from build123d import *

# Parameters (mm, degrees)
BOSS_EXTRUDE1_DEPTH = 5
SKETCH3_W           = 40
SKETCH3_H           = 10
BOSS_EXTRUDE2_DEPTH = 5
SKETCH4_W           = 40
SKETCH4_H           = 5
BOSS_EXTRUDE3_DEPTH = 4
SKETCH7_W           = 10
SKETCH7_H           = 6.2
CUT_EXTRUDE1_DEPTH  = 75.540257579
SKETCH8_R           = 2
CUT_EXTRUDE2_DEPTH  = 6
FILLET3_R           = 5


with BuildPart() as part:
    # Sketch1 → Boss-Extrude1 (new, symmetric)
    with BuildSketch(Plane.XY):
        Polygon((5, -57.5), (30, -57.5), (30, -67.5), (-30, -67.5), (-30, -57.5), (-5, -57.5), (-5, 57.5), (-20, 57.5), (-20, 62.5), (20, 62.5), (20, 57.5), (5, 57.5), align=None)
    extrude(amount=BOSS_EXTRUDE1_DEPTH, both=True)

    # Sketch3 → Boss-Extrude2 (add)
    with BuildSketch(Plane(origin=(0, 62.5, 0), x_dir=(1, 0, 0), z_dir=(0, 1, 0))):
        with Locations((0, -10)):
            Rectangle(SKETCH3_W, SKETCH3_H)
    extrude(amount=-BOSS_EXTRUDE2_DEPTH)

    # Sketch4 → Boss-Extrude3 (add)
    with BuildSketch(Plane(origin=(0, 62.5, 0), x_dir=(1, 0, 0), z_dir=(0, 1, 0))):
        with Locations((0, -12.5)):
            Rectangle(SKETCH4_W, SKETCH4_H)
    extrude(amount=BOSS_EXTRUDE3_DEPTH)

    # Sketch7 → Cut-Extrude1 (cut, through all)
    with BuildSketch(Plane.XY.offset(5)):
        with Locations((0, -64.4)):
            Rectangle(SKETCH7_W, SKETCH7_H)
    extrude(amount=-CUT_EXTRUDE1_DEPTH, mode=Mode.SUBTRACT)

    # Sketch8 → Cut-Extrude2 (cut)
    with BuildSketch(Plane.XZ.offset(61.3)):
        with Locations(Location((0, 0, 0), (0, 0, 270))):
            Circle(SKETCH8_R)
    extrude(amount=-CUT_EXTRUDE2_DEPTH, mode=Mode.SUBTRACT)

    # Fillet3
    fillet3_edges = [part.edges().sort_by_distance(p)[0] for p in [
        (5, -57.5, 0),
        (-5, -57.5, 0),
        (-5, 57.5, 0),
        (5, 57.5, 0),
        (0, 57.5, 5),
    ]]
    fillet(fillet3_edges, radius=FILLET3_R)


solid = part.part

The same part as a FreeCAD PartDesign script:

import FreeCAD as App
import Part
import Sketcher
Q = App.Units.Quantity


def edges_at(feature, points):
    """Names of the edges that pass closest to the given points."""
    edges = feature.Shape.Edges
    near = lambda p: min(range(len(edges)), key=lambda i: edges[i].distToShape(Part.Vertex(*p))[0])
    return sorted({f"Edge{near(p) + 1}" for p in points})

doc = App.newDocument("Part")
body = doc.addObject("PartDesign::Body", "Body")

# Sketch on XY plane
sketch1 = doc.addObject("Sketcher::SketchObject", "Sketch")
body.addObject(sketch1)
sketch1.AttachmentSupport = (doc.XY_Plane, [""])
sketch1.MapMode = "FlatFace"
sketch1.addGeometry([
    Part.LineSegment(App.Vector(30, -57.5, 0), App.Vector(5, -57.5, 0)),  # 0
    Part.LineSegment(App.Vector(5, -57.5, 0), App.Vector(5, 57.5, 0)),  # 1
    Part.LineSegment(App.Vector(5, 57.5, 0), App.Vector(20, 57.5, 0)),  # 2
    Part.LineSegment(App.Vector(20, 57.5, 0), App.Vector(20, 62.5, 0)),  # 3
    Part.LineSegment(App.Vector(20, 62.5, 0), App.Vector(-20, 62.5, 0)),  # 4
    Part.LineSegment(App.Vector(-20, 62.5, 0), App.Vector(-20, 57.5, 0)),  # 5
    Part.LineSegment(App.Vector(-20, 57.5, 0), App.Vector(-5, 57.5, 0)),  # 6
    Part.LineSegment(App.Vector(-5, 57.5, 0), App.Vector(-5, -57.5, 0)),  # 7
    Part.LineSegment(App.Vector(-5, -57.5, 0), App.Vector(-30, -57.5, 0)),  # 8
    Part.LineSegment(App.Vector(-30, -57.5, 0), App.Vector(-30, -67.5, 0)),  # 9
    Part.LineSegment(App.Vector(-30, -67.5, 0), App.Vector(30, -67.5, 0)),  # 10
    Part.LineSegment(App.Vector(30, -67.5, 0), App.Vector(30, -57.5, 0)),  # 11
], False)
sketch1.addConstraint([
    Sketcher.Constraint("Coincident", 0, 2, 1, 1),
    Sketcher.Constraint("Coincident", 1, 2, 2, 1),
    Sketcher.Constraint("Coincident", 2, 2, 3, 1),
    Sketcher.Constraint("Coincident", 3, 2, 4, 1),
    Sketcher.Constraint("Coincident", 4, 2, 5, 1),
    Sketcher.Constraint("Coincident", 5, 2, 6, 1),
    Sketcher.Constraint("Coincident", 6, 2, 7, 1),
    Sketcher.Constraint("Coincident", 7, 2, 8, 1),
    Sketcher.Constraint("Coincident", 8, 2, 9, 1),
    Sketcher.Constraint("Coincident", 9, 2, 10, 1),
    Sketcher.Constraint("Coincident", 10, 2, 11, 1),
    Sketcher.Constraint("Coincident", 11, 2, 0, 1),
    Sketcher.Constraint("Horizontal", 0),
    Sketcher.Constraint("Vertical", 1),
    Sketcher.Constraint("Horizontal", 2),
    Sketcher.Constraint("Vertical", 3),
    Sketcher.Constraint("Horizontal", 4),
    Sketcher.Constraint("Vertical", 5),
    Sketcher.Constraint("Horizontal", 6),
    Sketcher.Constraint("Vertical", 7),
    Sketcher.Constraint("Horizontal", 8),
    Sketcher.Constraint("Vertical", 9),
    Sketcher.Constraint("Horizontal", 10),
    Sketcher.Constraint("Vertical", 11),
    Sketcher.Constraint("Symmetric", 0, 2, 6, 2, -1, 1),
    Sketcher.Constraint("Symmetric", 2, 2, 5, 2, -2),
    Sketcher.Constraint("Symmetric", 8, 2, 11, 2, -2),
    Sketcher.Constraint("DistanceX", 0, 2, 0, 1, Q("25 mm")),
    Sketcher.Constraint("DistanceX", 2, 1, 2, 2, Q("15 mm")),
    Sketcher.Constraint("DistanceX", 4, 2, 4, 1, Q("40 mm")),
    Sketcher.Constraint("DistanceY", 1, 1, 1, 2, Q("115 mm")),
    Sketcher.Constraint("DistanceY", 3, 1, 3, 2, Q("5 mm")),
    Sketcher.Constraint("DistanceY", 9, 2, 9, 1, Q("10 mm")),
])
pad1 = doc.addObject("PartDesign::Pad", "Pad")
body.addObject(pad1)
pad1.Profile = sketch1
pad1.Length = 10
pad1.Midplane = True

# Sketch on XZ plane
sketch2 = doc.addObject("Sketcher::SketchObject", "Sketch001")
body.addObject(sketch2)
sketch2.AttachmentSupport = (doc.XZ_Plane, [""])
sketch2.MapMode = "FlatFace"
sketch2.AttachmentOffset = App.Placement(App.Vector(0, 0, -62.5), App.Rotation())
sketch2.addGeometry([
    Part.LineSegment(App.Vector(-20, 5, 0), App.Vector(-20, 15, 0)),
    Part.LineSegment(App.Vector(-20, 15, 0), App.Vector(20, 15, 0)),
    Part.LineSegment(App.Vector(20, 15, 0), App.Vector(20, 5, 0)),
    Part.LineSegment(App.Vector(20, 5, 0), App.Vector(-20, 5, 0)),
], False)
sketch2.addConstraint([
    Sketcher.Constraint("Coincident", 0, 2, 1, 1),
    Sketcher.Constraint("Coincident", 1, 2, 2, 1),
    Sketcher.Constraint("Coincident", 2, 2, 3, 1),
    Sketcher.Constraint("Coincident", 3, 2, 0, 1),
    Sketcher.Constraint("Vertical", 0),
    Sketcher.Constraint("Horizontal", 1),
    Sketcher.Constraint("Vertical", 2),
    Sketcher.Constraint("Horizontal", 3),
    Sketcher.Constraint("DistanceX", 1, 1, 1, 2, Q("40 mm")),
    Sketcher.Constraint("DistanceY", 0, 1, 0, 2, Q("10 mm")),
    Sketcher.Constraint("DistanceX", 0, 2, -1, 1, Q("20 mm")),
    Sketcher.Constraint("DistanceY", -1, 1, 0, 2, Q("15 mm")),
])
pad2 = doc.addObject("PartDesign::Pad", "Pad001")
body.addObject(pad2)
pad2.Profile = sketch2
pad2.Length = 5

# Sketch on XZ plane
sketch3 = doc.addObject("Sketcher::SketchObject", "Sketch002")
body.addObject(sketch3)
sketch3.AttachmentSupport = (doc.XZ_Plane, [""])
sketch3.MapMode = "FlatFace"
sketch3.AttachmentOffset = App.Placement(App.Vector(0, 0, -62.5), App.Rotation())
sketch3.addGeometry([
    Part.LineSegment(App.Vector(-20, 10, 0), App.Vector(-20, 15, 0)),
    Part.LineSegment(App.Vector(-20, 15, 0), App.Vector(20, 15, 0)),
    Part.LineSegment(App.Vector(20, 15, 0), App.Vector(20, 10, 0)),
    Part.LineSegment(App.Vector(20, 10, 0), App.Vector(-20, 10, 0)),
], False)
sketch3.addConstraint([
    Sketcher.Constraint("Coincident", 0, 2, 1, 1),
    Sketcher.Constraint("Coincident", 1, 2, 2, 1),
    Sketcher.Constraint("Coincident", 2, 2, 3, 1),
    Sketcher.Constraint("Coincident", 3, 2, 0, 1),
    Sketcher.Constraint("Vertical", 0),
    Sketcher.Constraint("Horizontal", 1),
    Sketcher.Constraint("Vertical", 2),
    Sketcher.Constraint("Horizontal", 3),
    Sketcher.Constraint("DistanceX", 1, 1, 1, 2, Q("40 mm")),
    Sketcher.Constraint("DistanceY", 0, 1, 0, 2, Q("5 mm")),
    Sketcher.Constraint("DistanceX", 0, 2, -1, 1, Q("20 mm")),
    Sketcher.Constraint("DistanceY", -1, 1, 0, 2, Q("15 mm")),
])
pad3 = doc.addObject("PartDesign::Pad", "Pad002")
body.addObject(pad3)
pad3.Profile = sketch3
pad3.Length = 4
pad3.Reversed = True

# Sketch on XY plane
sketch4 = doc.addObject("Sketcher::SketchObject", "Sketch003")
body.addObject(sketch4)
sketch4.AttachmentSupport = (doc.XY_Plane, [""])
sketch4.MapMode = "FlatFace"
sketch4.AttachmentOffset = App.Placement(App.Vector(0, 0, 5), App.Rotation())
sketch4.addGeometry([
    Part.LineSegment(App.Vector(-5, -61.3, 0), App.Vector(-5, -67.5, 0)),
    Part.LineSegment(App.Vector(-5, -67.5, 0), App.Vector(5, -67.5, 0)),
    Part.LineSegment(App.Vector(5, -67.5, 0), App.Vector(5, -61.3, 0)),
    Part.LineSegment(App.Vector(5, -61.3, 0), App.Vector(-5, -61.3, 0)),
], False)
sketch4.addConstraint([
    Sketcher.Constraint("Coincident", 0, 2, 1, 1),
    Sketcher.Constraint("Coincident", 1, 2, 2, 1),
    Sketcher.Constraint("Coincident", 2, 2, 3, 1),
    Sketcher.Constraint("Coincident", 3, 2, 0, 1),
    Sketcher.Constraint("Vertical", 0),
    Sketcher.Constraint("Horizontal", 1),
    Sketcher.Constraint("Vertical", 2),
    Sketcher.Constraint("Horizontal", 3),
    Sketcher.Constraint("DistanceX", 1, 1, 1, 2, Q("10 mm")),
    Sketcher.Constraint("DistanceY", 0, 2, 0, 1, Q("6.2 mm")),
    Sketcher.Constraint("DistanceX", 0, 2, -1, 1, Q("5 mm")),
    Sketcher.Constraint("DistanceY", 0, 2, -1, 1, Q("67.5 mm")),
])
pocket1 = doc.addObject("PartDesign::Pocket", "Pocket")
body.addObject(pocket1)
pocket1.Profile = sketch4
pocket1.Type = "ThroughAll"

# Sketch on XZ plane
sketch5 = doc.addObject("Sketcher::SketchObject", "Sketch004")
body.addObject(sketch5)
sketch5.AttachmentSupport = (doc.XZ_Plane, [""])
sketch5.MapMode = "FlatFace"
sketch5.AttachmentOffset = App.Placement(App.Vector(0, 0, 61.3), App.Rotation())
sketch5.addGeometry(Part.Circle(App.Vector(0, 0, 0), App.Vector(0, 0, 1), 2), False)
sketch5.addConstraint([
    Sketcher.Constraint("Coincident", 0, 3, -1, 1),
    Sketcher.Constraint("Diameter", 0, Q("4 mm")),
])
pocket2 = doc.addObject("PartDesign::Pocket", "Pocket001")
body.addObject(pocket2)
pocket2.Profile = sketch5
pocket2.Length = 6
doc.recompute()

fillet = doc.addObject("PartDesign::Fillet", "Fillet")
body.addObject(fillet)
fillet.Base = (pocket2, edges_at(pocket2, [
    (5, -57.5, 0),
    (-5, -57.5, 0),
    (-5, 57.5, 0),
    (5, 57.5, 0),
    (0, 57.5, 5),
]))
fillet.Radius = 5

doc.recompute()
